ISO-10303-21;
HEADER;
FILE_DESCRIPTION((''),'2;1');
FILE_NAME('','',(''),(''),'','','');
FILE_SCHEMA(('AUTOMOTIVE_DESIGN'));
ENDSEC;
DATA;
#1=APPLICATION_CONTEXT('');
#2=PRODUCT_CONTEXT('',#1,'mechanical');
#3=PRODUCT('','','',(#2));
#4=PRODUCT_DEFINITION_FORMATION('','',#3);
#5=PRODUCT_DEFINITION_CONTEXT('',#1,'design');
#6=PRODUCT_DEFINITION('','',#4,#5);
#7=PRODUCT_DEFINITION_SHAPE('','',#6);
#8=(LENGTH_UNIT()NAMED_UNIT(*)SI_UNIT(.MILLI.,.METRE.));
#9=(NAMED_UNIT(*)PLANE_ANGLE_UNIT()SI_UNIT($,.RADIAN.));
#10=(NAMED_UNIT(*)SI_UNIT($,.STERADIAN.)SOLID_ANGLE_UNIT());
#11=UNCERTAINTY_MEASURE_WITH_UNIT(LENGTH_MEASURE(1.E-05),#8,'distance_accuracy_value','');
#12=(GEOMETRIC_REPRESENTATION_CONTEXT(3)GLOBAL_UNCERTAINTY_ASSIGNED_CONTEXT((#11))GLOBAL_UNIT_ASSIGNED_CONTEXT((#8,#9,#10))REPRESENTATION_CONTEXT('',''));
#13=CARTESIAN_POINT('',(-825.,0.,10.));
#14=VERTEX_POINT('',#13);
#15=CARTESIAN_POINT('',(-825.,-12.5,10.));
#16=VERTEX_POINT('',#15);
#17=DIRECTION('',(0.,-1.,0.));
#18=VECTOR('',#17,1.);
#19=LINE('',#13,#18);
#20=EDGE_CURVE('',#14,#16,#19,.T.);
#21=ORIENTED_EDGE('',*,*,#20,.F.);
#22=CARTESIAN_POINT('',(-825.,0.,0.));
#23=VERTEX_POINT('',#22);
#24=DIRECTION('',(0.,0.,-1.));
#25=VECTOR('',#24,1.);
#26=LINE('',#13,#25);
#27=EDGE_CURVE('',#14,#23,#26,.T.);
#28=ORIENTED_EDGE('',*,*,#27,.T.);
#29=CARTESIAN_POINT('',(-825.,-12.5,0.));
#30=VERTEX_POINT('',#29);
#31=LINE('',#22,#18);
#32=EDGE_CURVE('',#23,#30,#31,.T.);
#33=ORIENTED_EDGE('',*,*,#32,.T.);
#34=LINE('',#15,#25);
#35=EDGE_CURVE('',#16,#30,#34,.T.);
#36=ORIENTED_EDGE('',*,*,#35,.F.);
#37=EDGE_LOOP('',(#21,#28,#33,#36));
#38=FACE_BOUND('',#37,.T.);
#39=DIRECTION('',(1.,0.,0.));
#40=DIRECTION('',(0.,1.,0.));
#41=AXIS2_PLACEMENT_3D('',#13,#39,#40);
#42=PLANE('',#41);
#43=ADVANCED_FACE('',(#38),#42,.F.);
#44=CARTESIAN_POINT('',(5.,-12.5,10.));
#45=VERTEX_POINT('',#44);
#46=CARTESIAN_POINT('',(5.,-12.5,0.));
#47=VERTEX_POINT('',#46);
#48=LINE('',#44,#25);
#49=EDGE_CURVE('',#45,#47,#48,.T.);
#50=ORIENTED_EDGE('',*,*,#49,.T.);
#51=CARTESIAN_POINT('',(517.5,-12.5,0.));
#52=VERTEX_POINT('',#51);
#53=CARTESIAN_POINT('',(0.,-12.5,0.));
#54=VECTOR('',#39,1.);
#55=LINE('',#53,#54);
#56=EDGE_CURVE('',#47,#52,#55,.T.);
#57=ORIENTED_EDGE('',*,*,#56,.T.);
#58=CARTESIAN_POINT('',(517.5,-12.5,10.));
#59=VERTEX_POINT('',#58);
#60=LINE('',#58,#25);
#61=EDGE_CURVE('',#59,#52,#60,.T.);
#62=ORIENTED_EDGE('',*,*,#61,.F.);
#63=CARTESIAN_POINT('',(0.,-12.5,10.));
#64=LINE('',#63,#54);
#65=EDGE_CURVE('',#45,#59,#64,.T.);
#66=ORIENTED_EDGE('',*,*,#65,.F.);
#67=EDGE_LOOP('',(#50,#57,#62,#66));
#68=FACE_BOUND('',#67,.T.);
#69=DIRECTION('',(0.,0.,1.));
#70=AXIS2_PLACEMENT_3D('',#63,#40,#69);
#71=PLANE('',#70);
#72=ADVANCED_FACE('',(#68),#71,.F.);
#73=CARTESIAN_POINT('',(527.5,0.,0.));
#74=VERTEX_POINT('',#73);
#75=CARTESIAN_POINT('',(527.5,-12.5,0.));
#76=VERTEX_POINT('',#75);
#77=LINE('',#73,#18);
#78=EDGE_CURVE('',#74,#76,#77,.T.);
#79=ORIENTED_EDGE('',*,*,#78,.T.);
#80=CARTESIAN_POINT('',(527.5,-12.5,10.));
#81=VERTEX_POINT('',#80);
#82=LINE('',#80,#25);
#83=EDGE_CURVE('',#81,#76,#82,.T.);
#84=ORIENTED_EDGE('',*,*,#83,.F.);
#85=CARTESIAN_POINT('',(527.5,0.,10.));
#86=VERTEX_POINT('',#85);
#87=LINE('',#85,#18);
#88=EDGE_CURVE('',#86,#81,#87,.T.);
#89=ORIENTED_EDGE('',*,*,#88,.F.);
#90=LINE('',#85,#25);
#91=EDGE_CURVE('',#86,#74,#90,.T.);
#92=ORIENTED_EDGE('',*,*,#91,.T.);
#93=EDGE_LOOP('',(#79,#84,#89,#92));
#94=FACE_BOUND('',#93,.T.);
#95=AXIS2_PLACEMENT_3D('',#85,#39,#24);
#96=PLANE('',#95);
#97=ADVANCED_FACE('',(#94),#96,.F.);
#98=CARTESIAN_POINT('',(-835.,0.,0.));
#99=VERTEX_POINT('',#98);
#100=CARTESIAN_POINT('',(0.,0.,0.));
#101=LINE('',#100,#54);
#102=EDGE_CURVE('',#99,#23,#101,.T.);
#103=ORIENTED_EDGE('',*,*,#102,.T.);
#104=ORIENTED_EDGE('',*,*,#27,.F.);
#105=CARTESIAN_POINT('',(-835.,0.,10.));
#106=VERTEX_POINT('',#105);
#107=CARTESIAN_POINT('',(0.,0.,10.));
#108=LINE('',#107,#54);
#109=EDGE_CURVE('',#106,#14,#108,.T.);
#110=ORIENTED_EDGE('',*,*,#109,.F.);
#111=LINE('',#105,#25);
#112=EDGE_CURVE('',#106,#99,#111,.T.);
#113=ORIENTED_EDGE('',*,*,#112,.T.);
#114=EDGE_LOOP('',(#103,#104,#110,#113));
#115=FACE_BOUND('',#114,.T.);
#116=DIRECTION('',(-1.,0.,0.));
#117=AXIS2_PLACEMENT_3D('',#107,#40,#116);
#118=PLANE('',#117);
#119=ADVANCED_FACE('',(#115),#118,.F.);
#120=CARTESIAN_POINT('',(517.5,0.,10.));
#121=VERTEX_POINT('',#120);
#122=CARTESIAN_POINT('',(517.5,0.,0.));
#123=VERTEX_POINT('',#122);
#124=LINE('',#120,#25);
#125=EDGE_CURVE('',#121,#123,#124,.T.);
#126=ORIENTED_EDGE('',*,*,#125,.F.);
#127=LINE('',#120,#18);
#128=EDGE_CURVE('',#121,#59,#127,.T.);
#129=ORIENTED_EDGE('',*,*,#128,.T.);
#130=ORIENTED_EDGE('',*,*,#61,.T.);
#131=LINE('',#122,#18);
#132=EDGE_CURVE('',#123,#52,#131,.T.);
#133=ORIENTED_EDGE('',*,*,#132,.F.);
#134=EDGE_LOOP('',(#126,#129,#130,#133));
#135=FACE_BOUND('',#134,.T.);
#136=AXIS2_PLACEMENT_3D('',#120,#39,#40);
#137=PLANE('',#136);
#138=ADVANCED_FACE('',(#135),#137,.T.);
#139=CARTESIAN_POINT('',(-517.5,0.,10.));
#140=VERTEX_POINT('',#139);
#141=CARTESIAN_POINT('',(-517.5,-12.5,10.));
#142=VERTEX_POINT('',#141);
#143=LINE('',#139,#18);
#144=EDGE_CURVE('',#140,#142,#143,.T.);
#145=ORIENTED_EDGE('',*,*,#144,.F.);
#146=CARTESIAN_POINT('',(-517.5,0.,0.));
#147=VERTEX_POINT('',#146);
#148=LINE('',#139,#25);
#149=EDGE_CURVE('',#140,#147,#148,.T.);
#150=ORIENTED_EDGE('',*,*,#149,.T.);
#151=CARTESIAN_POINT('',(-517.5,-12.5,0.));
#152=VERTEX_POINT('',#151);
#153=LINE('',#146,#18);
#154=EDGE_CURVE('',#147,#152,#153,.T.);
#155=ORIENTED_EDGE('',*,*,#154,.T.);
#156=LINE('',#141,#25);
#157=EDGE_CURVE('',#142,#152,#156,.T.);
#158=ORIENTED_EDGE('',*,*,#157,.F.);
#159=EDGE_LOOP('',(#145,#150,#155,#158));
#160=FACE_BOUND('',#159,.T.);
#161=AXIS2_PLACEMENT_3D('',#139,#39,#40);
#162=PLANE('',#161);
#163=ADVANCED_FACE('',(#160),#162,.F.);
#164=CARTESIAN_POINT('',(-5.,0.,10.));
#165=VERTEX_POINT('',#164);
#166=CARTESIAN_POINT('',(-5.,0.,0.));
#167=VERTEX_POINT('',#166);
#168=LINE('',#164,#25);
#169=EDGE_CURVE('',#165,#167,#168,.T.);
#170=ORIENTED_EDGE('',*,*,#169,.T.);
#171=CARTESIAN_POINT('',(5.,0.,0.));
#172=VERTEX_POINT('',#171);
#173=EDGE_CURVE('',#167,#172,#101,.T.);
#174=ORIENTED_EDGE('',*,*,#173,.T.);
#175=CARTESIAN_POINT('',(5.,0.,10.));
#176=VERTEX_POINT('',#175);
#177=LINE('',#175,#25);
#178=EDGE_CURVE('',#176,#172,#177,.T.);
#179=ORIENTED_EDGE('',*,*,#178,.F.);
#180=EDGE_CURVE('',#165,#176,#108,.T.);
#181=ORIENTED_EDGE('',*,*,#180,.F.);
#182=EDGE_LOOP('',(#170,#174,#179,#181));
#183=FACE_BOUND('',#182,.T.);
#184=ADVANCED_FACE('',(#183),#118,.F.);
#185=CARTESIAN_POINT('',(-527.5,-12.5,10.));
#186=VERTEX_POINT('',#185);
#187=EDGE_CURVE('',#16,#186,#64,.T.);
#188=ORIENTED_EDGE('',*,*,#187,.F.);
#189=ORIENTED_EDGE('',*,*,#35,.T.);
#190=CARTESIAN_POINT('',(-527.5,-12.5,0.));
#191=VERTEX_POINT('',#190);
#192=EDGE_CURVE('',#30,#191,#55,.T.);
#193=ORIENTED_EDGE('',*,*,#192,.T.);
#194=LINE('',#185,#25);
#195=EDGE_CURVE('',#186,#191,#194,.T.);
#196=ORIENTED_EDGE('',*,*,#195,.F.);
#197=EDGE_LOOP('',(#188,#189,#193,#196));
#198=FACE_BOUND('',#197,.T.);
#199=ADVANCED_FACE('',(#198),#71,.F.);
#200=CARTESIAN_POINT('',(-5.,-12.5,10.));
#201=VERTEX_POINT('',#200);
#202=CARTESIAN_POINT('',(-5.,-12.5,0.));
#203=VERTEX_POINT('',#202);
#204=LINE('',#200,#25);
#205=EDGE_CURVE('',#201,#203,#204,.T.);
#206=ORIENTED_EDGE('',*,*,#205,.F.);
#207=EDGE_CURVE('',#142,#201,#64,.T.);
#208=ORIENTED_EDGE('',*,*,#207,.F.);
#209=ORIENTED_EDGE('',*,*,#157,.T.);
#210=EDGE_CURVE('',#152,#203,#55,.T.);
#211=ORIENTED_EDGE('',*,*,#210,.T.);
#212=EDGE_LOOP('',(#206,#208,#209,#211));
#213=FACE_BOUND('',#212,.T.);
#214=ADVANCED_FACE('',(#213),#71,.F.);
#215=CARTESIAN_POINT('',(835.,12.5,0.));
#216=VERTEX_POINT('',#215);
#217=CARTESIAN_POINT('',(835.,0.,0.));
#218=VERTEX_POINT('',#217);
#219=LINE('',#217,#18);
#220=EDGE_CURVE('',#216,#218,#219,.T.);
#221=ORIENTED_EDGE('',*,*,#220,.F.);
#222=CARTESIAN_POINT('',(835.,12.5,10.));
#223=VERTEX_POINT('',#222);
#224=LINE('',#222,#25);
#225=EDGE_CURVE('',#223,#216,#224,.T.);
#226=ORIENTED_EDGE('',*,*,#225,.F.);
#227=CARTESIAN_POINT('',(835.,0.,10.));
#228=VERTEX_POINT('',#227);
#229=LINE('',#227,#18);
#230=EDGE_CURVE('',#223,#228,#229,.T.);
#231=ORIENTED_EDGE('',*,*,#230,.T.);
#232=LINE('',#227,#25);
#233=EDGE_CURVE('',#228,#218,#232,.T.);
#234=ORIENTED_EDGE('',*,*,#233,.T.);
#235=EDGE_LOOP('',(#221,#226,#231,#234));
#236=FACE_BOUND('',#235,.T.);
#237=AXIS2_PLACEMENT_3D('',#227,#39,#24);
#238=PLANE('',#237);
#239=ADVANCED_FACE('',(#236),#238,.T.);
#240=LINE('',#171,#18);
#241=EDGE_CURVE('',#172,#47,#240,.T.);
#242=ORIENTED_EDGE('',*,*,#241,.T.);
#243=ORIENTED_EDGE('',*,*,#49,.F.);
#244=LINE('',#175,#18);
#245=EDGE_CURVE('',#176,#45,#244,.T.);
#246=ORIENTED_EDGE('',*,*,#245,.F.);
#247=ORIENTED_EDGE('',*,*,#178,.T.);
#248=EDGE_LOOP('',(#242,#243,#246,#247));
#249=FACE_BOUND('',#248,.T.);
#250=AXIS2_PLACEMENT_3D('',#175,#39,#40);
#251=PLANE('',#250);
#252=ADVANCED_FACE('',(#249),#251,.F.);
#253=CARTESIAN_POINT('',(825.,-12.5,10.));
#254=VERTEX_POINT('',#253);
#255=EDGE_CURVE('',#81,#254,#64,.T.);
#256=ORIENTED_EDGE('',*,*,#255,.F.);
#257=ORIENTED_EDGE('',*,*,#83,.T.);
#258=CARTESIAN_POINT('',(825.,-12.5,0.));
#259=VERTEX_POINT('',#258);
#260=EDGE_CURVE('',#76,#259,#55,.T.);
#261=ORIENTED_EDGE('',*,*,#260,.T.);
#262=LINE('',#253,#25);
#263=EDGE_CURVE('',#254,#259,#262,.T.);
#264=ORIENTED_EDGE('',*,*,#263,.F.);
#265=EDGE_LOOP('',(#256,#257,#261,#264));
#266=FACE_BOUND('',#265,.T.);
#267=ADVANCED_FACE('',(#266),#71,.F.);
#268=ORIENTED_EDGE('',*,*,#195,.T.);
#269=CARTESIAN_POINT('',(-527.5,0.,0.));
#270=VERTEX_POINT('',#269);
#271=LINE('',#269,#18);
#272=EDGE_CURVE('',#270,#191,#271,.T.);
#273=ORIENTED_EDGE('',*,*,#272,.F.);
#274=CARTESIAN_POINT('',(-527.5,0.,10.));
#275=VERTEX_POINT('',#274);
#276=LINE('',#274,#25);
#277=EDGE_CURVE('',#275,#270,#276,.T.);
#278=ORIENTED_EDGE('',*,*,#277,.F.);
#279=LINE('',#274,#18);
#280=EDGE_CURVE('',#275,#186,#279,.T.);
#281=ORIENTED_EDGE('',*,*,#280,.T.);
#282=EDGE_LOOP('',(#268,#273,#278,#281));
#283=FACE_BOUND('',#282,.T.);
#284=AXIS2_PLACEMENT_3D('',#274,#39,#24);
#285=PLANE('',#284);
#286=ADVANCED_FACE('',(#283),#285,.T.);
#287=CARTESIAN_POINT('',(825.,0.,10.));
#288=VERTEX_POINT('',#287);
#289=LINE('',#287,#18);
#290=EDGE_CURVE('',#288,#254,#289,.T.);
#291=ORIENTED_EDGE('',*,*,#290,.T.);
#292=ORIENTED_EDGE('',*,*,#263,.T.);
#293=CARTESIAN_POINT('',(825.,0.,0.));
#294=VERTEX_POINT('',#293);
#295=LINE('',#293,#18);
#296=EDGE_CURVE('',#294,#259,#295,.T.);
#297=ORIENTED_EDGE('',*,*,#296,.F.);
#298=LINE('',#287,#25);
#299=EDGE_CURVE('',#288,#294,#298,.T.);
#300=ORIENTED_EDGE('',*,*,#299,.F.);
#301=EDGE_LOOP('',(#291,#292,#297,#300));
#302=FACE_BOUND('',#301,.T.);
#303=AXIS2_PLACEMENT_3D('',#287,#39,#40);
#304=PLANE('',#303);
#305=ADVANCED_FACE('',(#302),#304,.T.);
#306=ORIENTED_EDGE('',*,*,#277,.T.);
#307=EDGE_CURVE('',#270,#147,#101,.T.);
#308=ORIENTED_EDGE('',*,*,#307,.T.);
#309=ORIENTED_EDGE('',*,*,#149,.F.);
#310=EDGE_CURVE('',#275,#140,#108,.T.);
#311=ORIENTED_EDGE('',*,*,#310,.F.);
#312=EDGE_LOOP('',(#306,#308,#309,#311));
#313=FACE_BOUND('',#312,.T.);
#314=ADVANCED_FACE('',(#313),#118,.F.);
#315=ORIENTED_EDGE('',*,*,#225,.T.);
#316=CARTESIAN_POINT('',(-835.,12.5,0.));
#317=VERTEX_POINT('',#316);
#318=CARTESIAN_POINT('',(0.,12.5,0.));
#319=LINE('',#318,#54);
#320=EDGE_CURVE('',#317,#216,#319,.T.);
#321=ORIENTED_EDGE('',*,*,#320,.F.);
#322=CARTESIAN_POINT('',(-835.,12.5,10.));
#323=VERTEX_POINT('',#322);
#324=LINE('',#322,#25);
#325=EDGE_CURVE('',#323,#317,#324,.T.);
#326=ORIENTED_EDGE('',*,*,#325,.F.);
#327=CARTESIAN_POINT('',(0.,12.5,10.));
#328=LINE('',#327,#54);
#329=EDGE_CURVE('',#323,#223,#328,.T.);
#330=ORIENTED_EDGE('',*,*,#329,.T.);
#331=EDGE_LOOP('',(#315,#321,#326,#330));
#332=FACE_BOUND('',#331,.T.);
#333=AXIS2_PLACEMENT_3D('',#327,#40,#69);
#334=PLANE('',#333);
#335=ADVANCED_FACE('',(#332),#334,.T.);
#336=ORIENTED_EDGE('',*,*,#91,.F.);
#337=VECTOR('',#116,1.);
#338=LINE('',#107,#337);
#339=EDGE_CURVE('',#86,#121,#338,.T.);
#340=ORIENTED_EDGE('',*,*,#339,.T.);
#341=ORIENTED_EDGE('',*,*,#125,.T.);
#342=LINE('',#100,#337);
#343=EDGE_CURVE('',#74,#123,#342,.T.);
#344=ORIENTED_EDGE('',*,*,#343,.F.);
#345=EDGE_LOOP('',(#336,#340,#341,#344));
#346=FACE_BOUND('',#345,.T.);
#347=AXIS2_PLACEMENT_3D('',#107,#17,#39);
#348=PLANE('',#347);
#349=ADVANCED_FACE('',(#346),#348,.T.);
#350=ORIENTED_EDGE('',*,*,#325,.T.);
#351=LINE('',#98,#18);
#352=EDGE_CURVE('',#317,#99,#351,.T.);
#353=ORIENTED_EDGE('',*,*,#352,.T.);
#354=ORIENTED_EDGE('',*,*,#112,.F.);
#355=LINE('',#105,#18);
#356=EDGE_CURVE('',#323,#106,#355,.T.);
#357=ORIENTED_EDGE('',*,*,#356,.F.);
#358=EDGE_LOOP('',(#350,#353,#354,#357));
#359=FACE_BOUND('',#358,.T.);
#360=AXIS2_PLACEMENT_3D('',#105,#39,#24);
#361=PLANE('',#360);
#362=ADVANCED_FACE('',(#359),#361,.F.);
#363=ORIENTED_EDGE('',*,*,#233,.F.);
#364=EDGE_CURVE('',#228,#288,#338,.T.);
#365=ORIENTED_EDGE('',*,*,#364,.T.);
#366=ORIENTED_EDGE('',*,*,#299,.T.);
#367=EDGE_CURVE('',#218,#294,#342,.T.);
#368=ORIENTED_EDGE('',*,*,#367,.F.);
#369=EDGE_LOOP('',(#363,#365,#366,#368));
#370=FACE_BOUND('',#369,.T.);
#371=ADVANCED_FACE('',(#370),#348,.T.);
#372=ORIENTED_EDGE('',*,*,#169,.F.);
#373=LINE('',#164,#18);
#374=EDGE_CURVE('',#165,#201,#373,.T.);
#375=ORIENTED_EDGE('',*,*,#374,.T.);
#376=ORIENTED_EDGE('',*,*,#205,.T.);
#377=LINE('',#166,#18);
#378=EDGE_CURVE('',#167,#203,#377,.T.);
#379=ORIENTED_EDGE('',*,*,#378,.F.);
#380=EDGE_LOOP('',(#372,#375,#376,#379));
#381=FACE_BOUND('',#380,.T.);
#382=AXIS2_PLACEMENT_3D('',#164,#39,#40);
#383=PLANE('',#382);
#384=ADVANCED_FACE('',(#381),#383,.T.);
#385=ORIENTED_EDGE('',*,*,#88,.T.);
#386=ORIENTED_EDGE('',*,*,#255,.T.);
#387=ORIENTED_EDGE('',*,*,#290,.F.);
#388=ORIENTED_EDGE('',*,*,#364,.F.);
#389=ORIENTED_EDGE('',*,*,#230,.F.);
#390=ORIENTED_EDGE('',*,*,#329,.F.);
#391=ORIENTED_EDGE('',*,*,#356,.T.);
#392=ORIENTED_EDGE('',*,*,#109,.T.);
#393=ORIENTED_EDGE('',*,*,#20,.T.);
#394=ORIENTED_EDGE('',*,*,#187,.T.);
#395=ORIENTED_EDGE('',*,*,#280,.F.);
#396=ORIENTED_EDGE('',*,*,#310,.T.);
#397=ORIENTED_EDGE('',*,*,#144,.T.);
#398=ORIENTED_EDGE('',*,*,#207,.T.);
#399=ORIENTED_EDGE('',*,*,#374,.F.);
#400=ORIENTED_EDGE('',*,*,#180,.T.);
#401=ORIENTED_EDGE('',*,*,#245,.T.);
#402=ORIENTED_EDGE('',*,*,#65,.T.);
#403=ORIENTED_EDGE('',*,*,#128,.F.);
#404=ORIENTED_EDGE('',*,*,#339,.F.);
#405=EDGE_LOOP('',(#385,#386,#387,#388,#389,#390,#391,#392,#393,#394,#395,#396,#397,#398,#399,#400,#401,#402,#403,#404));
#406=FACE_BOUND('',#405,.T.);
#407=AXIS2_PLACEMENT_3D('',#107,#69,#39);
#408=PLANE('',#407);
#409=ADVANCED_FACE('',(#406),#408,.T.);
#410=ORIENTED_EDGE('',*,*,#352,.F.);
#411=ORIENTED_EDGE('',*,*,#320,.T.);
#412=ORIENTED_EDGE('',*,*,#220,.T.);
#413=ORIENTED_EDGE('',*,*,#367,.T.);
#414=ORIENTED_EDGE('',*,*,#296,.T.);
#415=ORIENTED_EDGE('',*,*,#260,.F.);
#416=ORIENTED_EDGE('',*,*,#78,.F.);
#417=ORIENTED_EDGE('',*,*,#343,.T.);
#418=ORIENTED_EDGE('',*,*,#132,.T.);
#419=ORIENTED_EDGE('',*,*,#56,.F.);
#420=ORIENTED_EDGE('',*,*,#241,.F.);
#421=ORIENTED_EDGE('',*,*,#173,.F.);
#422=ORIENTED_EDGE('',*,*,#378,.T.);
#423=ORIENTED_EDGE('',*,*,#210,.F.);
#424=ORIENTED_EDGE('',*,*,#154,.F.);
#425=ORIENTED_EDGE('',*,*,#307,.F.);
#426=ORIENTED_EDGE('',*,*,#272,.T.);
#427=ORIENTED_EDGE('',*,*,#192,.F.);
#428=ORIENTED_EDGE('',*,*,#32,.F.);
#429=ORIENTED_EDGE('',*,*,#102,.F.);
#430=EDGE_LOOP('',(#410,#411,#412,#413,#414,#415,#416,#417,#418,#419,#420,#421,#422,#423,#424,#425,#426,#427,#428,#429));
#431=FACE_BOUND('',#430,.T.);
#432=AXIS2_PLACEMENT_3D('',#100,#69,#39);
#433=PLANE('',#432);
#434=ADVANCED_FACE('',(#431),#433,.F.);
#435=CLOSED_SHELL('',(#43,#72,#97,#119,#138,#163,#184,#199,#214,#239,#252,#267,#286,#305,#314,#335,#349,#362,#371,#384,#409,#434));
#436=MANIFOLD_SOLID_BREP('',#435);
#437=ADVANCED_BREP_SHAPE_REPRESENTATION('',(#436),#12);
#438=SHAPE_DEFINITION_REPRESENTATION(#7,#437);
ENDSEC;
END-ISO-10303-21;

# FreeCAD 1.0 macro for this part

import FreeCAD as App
import Part
import Sketcher
from FreeCAD import Vector

doc = App.newDocument("Part")
params = doc.addObject("Spreadsheet::Sheet", "Params")
for row, (alias, value) in enumerate([
    ("sketch1_width", "10 mm"),
    ("sketch1_width2", "1670 mm"),
    ("sketch1_width3", "512.5 mm"),
    ("sketch1_height", "12.5 mm"),
    ("pad1_length", "10 mm"),
], start=1):
    params.set(f"A{row}", alias)
    params.set(f"B{row}", "=" + value)
    params.setAlias(f"B{row}", alias)

body = doc.addObject("PartDesign::Body", "Body")

sketch1 = body.newObject("Sketcher::SketchObject", "Sketch")
sketch1.AttachmentSupport = (doc.getObject("XY_Plane"), [""])
sketch1.MapMode = "FlatFace"
sketch1.addGeometry([
    Part.LineSegment(Vector(-5, -12, 0), Vector(-5, 0, 0)),
    Part.LineSegment(Vector(-5, 0, 0), Vector(5, 0, 0)),
    Part.LineSegment(Vector(5, 0, 0), Vector(5, -12, 0)),
    Part.LineSegment(Vector(5, -12, 0), Vector(518, -12, 0)),
    Part.LineSegment(Vector(518, -12, 0), Vector(518, 0, 0)),
    Part.LineSegment(Vector(518, 0, 0), Vector(528, 0, 0)),
    Part.LineSegment(Vector(528, 0, 0), Vector(528, -12, 0)),
    Part.LineSegment(Vector(528, -12, 0), Vector(825, -12, 0)),
    Part.LineSegment(Vector(825, -12, 0), Vector(825, 0, 0)),
    Part.LineSegment(Vector(825, 0, 0), Vector(835, 0, 0)),
    Part.LineSegment(Vector(835, 0, 0), Vector(835, 12, 0)),
    Part.LineSegment(Vector(835, 12, 0), Vector(-835, 12, 0)),
    Part.LineSegment(Vector(-835, 12, 0), Vector(-835, 0, 0)),
    Part.LineSegment(Vector(-835, 0, 0), Vector(-825, 0, 0)),
    Part.LineSegment(Vector(-825, 0, 0), Vector(-825, -12, 0)),
    Part.LineSegment(Vector(-825, -12, 0), Vector(-528, -12, 0)),
    Part.LineSegment(Vector(-528, -12, 0), Vector(-528, 0, 0)),
    Part.LineSegment(Vector(-528, 0, 0), Vector(-518, 0, 0)),
    Part.LineSegment(Vector(-518, 0, 0), Vector(-518, -12, 0)),
    Part.LineSegment(Vector(-518, -12, 0), Vector(-5, -12, 0)),
], False)
sketch1.addConstraint([
    Sketcher.Constraint("Coincident", 0, 2, 1, 1),
    Sketcher.Constraint("Coincident", 1, 2, 2, 1),
    Sketcher.Constraint("Coincident", 2, 2, 3, 1),
    Sketcher.Constraint("Coincident", 3, 2, 4, 1),
    Sketcher.Constraint("Coincident", 4, 2, 5, 1),
    Sketcher.Constraint("Coincident", 5, 2, 6, 1),
    Sketcher.Constraint("Coincident", 6, 2, 7, 1),
    Sketcher.Constraint("Coincident", 7, 2, 8, 1),
    Sketcher.Constraint("Coincident", 8, 2, 9, 1),
    Sketcher.Constraint("Coincident", 9, 2, 10, 1),
    Sketcher.Constraint("Coincident", 10, 2, 11, 1),
    Sketcher.Constraint("Coincident", 11, 2, 12, 1),
    Sketcher.Constraint("Coincident", 12, 2, 13, 1),
    Sketcher.Constraint("Coincident", 13, 2, 14, 1),
    Sketcher.Constraint("Coincident", 14, 2, 15, 1),
    Sketcher.Constraint("Coincident", 15, 2, 16, 1),
    Sketcher.Constraint("Coincident", 16, 2, 17, 1),
    Sketcher.Constraint("Coincident", 17, 2, 18, 1),
    Sketcher.Constraint("Coincident", 18, 2, 19, 1),
    Sketcher.Constraint("Coincident", 19, 2, 0, 1),
    Sketcher.Constraint("Vertical", 0),
    Sketcher.Constraint("Horizontal", 1),
    Sketcher.Constraint("Vertical", 2),
    Sketcher.Constraint("Horizontal", 3),
    Sketcher.Constraint("Vertical", 4),
    Sketcher.Constraint("Horizontal", 5),
    Sketcher.Constraint("Vertical", 6),
    Sketcher.Constraint("Horizontal", 7),
    Sketcher.Constraint("Vertical", 8),
    Sketcher.Constraint("Horizontal", 9),
    Sketcher.Constraint("Vertical", 10),
    Sketcher.Constraint("Horizontal", 11),
    Sketcher.Constraint("Vertical", 12),
    Sketcher.Constraint("Horizontal", 13),
    Sketcher.Constraint("Vertical", 14),
    Sketcher.Constraint("Horizontal", 15),
    Sketcher.Constraint("Vertical", 16),
    Sketcher.Constraint("Horizontal", 17),
    Sketcher.Constraint("Vertical", 18),
    Sketcher.Constraint("Horizontal", 19),
    Sketcher.Constraint("Symmetric", 0, 2, 1, 2, -1, 1),
    Sketcher.Constraint("Symmetric", 9, 2, 12, 2, -1, 1),
    Sketcher.Constraint("Symmetric", 5, 2, 16, 2, -1, 1),
    Sketcher.Constraint("Symmetric", 8, 2, 13, 2, -2),
    Sketcher.Constraint("Symmetric", 4, 2, 17, 2, -2),
    Sketcher.Constraint("Horizontal", 3, 2, 6, 2),
    Sketcher.Constraint("Horizontal", 7, 2, 14, 2),
    Sketcher.Constraint("Horizontal", 15, 2, 18, 2),
    Sketcher.Constraint("Equal", 1, 5),
    Sketcher.Constraint("Equal", 5, 9),
    Sketcher.Constraint("Equal", 8, 10),
    Sketcher.Constraint("DistanceX", 1, 1, 1, 2, 10.0),
    Sketcher.Constraint("DistanceX", 11, 2, 11, 1, 1670.0),
    Sketcher.Constraint("DistanceX", 3, 1, 3, 2, 512.5),
    Sketcher.Constraint("DistanceY", 0, 1, 0, 2, 12.5),
])
sketch1.setExpression("Constraints[51]", "Params.sketch1_width")
sketch1.setExpression("Constraints[52]", "Params.sketch1_width2")
sketch1.setExpression("Constraints[53]", "Params.sketch1_width3")
sketch1.setExpression("Constraints[54]", "Params.sketch1_height")
pad1 = body.newObject("PartDesign::Pad", "Pad")
pad1.Profile = sketch1
pad1.setExpression("Length", "Params.pad1_length")

doc.recompute()
